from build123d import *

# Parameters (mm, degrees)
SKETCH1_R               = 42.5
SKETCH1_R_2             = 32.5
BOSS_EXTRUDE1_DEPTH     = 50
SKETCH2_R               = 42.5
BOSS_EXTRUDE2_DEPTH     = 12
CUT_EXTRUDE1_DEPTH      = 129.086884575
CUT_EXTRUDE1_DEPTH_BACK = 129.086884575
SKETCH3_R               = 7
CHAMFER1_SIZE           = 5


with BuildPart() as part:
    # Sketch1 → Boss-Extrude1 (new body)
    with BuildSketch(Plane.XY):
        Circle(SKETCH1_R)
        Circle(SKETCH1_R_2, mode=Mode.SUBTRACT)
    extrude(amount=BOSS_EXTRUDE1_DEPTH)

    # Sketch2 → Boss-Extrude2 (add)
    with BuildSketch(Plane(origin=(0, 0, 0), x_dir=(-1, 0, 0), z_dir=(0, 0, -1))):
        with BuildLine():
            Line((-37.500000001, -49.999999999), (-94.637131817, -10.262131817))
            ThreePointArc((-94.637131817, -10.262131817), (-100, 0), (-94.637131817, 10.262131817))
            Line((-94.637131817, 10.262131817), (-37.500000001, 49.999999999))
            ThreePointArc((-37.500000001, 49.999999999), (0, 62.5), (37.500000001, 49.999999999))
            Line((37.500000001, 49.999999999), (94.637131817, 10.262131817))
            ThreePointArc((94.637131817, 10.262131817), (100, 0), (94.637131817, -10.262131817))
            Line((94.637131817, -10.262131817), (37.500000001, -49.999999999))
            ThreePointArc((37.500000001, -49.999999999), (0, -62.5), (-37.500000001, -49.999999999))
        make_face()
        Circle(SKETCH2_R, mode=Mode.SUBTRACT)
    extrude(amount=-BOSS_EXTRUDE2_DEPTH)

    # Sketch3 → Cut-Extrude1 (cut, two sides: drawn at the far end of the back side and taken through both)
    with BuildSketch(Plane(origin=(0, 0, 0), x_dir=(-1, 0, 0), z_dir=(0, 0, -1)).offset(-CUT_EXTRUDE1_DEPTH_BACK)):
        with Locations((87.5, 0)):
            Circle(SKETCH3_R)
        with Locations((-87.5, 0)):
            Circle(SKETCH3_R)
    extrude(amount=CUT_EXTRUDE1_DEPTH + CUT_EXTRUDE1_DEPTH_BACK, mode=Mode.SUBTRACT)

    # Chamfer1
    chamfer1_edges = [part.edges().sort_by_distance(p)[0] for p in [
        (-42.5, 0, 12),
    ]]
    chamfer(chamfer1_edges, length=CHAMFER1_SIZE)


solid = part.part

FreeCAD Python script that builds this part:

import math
import FreeCAD as App
import Part
import Sketcher

V = App.Vector
Q = App.Units.Quantity


def edges_at(feature, points):
    """Names of the edges that pass closest to the given points."""
    edges = feature.Shape.Edges
    near = lambda p: min(range(len(edges)), key=lambda i: edges[i].distToShape(Part.Vertex(*p))[0])
    return sorted({f"Edge{near(p) + 1}" for p in points})

doc = App.newDocument("Part")
body = doc.addObject("PartDesign::Body", "Body")

# Sketch on XY plane
sketch1 = body.newObject("Sketcher::SketchObject", "Sketch")
sketch1.AttachmentSupport = (doc.getObject("XY_Plane"), [""])
sketch1.MapMode = "FlatFace"
sketch1.addGeometry([
    Part.Circle(V(0, 0, 0), V(0, 0, 1), 42.5),
    Part.Circle(V(0, 0, 0), V(0, 0, 1), 32.5),
], False)
sketch1.addConstraint([
    Sketcher.Constraint("Coincident", 0, 3, -1, 1),
    Sketcher.Constraint("Coincident", 1, 3, -1, 1),
    Sketcher.Constraint("Diameter", 0, Q("85 mm")),
    Sketcher.Constraint("Diameter", 1, Q("65 mm")),
])
pad1 = body.newObject("PartDesign::Pad", "Pad")
pad1.Profile = sketch1
pad1.Length = 50

# Sketch on XY plane
sketch2 = body.newObject("Sketcher::SketchObject", "Sketch001")
sketch2.AttachmentSupport = (doc.getObject("XY_Plane"), [""])
sketch2.MapMode = "FlatFace"
sketch2.addGeometry([
    Part.LineSegment(V(94.637132, -10.262132, 0), V(37.5, -50, 0)),  # 0
    Part.ArcOfCircle(Part.Circle(V(0, 0, 0), V(0, 0, 1), 62.5), math.radians(-126.869898), math.radians(-53.130102)),  # 1
    Part.LineSegment(V(-37.5, -50, 0), V(-94.637132, -10.262132, 0)),  # 2
    Part.ArcOfCircle(Part.Circle(V(-87.5, 0, 0), V(0, 0, 1), 12.5), math.radians(124.817933), math.radians(235.182067)),  # 3
    Part.LineSegment(V(-94.637132, 10.262132, 0), V(-37.5, 50, 0)),  # 4
    Part.ArcOfCircle(Part.Circle(V(0, 0, 0), V(0, 0, 1), 62.5), math.radians(53.130102), math.radians(126.869898)),  # 5
    Part.LineSegment(V(37.5, 50, 0), V(94.637132, 10.262132, 0)),  # 6
    Part.ArcOfCircle(Part.Circle(V(87.5, 0, 0), V(0, 0, 1), 12.5), math.radians(-55.182067), math.radians(55.182067)),  # 7
    Part.Circle(V(0, 0, 0), V(0, 0, 1), 42.5),  # 8
], False)
sketch2.addConstraint([
    Sketcher.Constraint("Coincident", 0, 2, 1, 2),
    Sketcher.Constraint("Coincident", 1, 1, 2, 1),
    Sketcher.Constraint("Tangent", 2, 2, 3, 2),
    Sketcher.Constraint("Tangent", 3, 1, 4, 1),
    Sketcher.Constraint("Coincident", 4, 2, 5, 2),
    Sketcher.Constraint("Coincident", 5, 1, 6, 1),
    Sketcher.Constraint("Tangent", 6, 2, 7, 2),
    Sketcher.Constraint("Tangent", 7, 1, 0, 1),
    Sketcher.Constraint("Coincident", 1, 3, -1, 1),
    Sketcher.Constraint("Coincident", 5, 3, -1, 1),
    Sketcher.Constraint("Coincident", 8, 3, -1, 1),
    Sketcher.Constraint("Equal", 1, 5),
    Sketcher.Constraint("Equal", 3, 7),
    Sketcher.Constraint("Symmetric", 3, 3, 7, 3, -1, 1),
    Sketcher.Constraint("Symmetric", 3, 1, 6, 2, -2),
    Sketcher.Constraint("Parallel", 0, 4),
    Sketcher.Constraint("Parallel", 2, 6),
    Sketcher.Constraint("Diameter", 8, Q("85 mm")),
    Sketcher.Constraint("Radius", 1, Q("62.5 mm")),
    Sketcher.Constraint("Radius", 3, Q("12.5 mm")),
    Sketcher.Constraint("DistanceY", 0, 2, -1, 1, Q("50 mm")),
    Sketcher.Constraint("DistanceX", 3, 3, 7, 3, Q("175 mm")),
])
pad2 = body.newObject("PartDesign::Pad", "Pad001")
pad2.Profile = sketch2
pad2.Length = 12

# Sketch on XY plane
sketch3 = body.newObject("Sketcher::SketchObject", "Sketch002")
sketch3.AttachmentSupport = (doc.getObject("XY_Plane"), [""])
sketch3.MapMode = "FlatFace"
sketch3.addGeometry([
    Part.Circle(V(-87.5, 0, 0), V(0, 0, 1), 7),
    Part.Circle(V(87.5, 0, 0), V(0, 0, 1), 7),
], False)
sketch3.addConstraint([
    Sketcher.Constraint("Equal", 0, 1),
    Sketcher.Constraint("Symmetric", 0, 3, 1, 3, -1, 1),
    Sketcher.Constraint("PointOnObject", 0, 3, -1),
    Sketcher.Constraint("Diameter", 0, Q("14 mm")),
    Sketcher.Constraint("DistanceX", 0, 3, 1, 3, Q("175 mm")),
])
pocket1 = body.newObject("PartDesign::Pocket", "Pocket")
pocket1.Profile = sketch3
pocket1.Type = "ThroughAll"
pocket1.Midplane = True
doc.recompute()

chamfer = body.newObject("PartDesign::Chamfer", "Chamfer")
chamfer.Base = (pocket1, edges_at(pocket1, [(-42.5, 0, 12)]))
chamfer.Size = 5

doc.recompute()
